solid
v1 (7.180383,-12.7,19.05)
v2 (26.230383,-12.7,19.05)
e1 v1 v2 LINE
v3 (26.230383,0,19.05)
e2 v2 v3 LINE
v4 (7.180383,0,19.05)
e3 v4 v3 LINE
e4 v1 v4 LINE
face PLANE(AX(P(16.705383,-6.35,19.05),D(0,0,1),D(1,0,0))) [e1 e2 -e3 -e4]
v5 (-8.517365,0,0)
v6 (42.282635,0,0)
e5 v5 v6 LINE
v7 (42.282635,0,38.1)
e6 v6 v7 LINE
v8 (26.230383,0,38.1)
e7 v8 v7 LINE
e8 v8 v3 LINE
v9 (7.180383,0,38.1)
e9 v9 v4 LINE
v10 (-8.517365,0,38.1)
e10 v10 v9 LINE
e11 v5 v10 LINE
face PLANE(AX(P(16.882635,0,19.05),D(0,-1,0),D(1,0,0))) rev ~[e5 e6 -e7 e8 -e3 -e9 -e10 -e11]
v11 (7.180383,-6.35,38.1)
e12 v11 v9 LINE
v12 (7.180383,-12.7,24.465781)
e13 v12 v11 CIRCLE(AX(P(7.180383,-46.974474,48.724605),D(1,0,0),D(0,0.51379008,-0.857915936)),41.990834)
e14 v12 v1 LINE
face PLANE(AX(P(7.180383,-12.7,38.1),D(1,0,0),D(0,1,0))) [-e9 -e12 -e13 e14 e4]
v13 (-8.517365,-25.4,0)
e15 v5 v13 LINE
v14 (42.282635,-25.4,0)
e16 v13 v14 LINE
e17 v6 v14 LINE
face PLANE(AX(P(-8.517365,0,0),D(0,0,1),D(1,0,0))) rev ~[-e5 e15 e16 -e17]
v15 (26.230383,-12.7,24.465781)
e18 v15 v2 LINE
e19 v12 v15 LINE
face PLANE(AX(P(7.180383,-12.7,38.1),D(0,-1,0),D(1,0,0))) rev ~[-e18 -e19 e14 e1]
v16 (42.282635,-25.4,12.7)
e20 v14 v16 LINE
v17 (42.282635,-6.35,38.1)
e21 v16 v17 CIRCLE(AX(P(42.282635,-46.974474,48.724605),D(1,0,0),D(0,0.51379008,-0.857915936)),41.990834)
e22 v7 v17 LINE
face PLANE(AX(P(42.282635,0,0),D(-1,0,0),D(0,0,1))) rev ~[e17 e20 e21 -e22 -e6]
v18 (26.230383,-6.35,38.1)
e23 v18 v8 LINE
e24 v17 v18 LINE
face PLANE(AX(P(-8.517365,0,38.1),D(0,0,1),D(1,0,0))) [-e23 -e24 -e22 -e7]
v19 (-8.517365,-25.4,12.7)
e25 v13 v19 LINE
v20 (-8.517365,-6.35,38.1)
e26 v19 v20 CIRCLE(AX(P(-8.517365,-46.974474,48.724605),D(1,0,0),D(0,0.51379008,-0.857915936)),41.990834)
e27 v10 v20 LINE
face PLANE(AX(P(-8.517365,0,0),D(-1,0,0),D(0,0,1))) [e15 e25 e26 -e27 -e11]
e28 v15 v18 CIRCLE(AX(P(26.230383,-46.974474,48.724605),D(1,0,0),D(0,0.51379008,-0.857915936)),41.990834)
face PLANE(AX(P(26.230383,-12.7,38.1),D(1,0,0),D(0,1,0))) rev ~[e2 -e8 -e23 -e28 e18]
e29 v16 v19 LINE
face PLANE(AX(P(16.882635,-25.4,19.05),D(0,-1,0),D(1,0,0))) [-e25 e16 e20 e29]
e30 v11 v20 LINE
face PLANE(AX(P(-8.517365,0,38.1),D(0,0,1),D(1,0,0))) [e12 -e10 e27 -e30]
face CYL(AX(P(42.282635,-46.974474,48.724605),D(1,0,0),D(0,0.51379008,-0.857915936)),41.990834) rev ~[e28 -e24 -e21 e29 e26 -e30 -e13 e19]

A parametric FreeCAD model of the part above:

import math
import FreeCAD as App
import Part
import Sketcher

V = App.Vector
Q = App.Units.Quantity

doc = App.newDocument("Part")
body = doc.addObject("PartDesign::Body", "Body")

# Sketch on XZ plane
sketch1 = doc.addObject("Sketcher::SketchObject", "Sketch")
body.addObject(sketch1)
sketch1.AttachmentSupport = (doc.XZ_Plane, [""])
sketch1.MapMode = "FlatFace"
sketch1.addGeometry([
    Part.LineSegment(V(-9, 38, 0), V(-9, 0, 0)),
    Part.LineSegment(V(-9, 0, 0), V(42, 0, 0)),
    Part.LineSegment(V(42, 0, 0), V(42, 38, 0)),
    Part.LineSegment(V(42, 38, 0), V(-9, 38, 0)),
], False)
sketch1.addConstraint([
    Sketcher.Constraint("Coincident", 0, 2, 1, 1),
    Sketcher.Constraint("Coincident", 1, 2, 2, 1),
    Sketcher.Constraint("Coincident", 2, 2, 3, 1),
    Sketcher.Constraint("Coincident", 3, 2, 0, 1),
    Sketcher.Constraint("Vertical", 0),
    Sketcher.Constraint("Horizontal", 1),
    Sketcher.Constraint("Vertical", 2),
    Sketcher.Constraint("Horizontal", 3),
    Sketcher.Constraint("PointOnObject", 0, 2, -1),
    Sketcher.Constraint("DistanceX", 1, 1, 1, 2, Q("2 in")),
    Sketcher.Constraint("DistanceY", 0, 2, 0, 1, Q("1.5 in")),
    Sketcher.Constraint("DistanceX", 0, 2, -1, 1, 8.517365),
])
pad1 = doc.addObject("PartDesign::Pad", "Pad")
body.addObject(pad1)
pad1.Profile = sketch1
pad1.Length = Q("1 in")

# Sketch on YZ plane
sketch2 = doc.addObject("Sketcher::SketchObject", "Sketch001")
body.addObject(sketch2)
sketch2.AttachmentSupport = (doc.YZ_Plane, [""])
sketch2.MapMode = "FlatFace"
sketch2.AttachmentOffset = App.Placement(V(0, 0, 42.282635), App.Rotation())
sketch2.addGeometry([
    Part.LineSegment(V(-25, 38, 0), V(-25, 13, 0)),
    Part.ArcOfCircle(Part.Circle(V(-47, 49, 0), V(0, 0, 1), 42), math.radians(-59), math.radians(-15)),
    Part.LineSegment(V(-6, 38, 0), V(-25, 38, 0)),
], False)
sketch2.addConstraint([
    Sketcher.Constraint("Coincident", 0, 2, 1, 1),
    Sketcher.Constraint("Coincident", 1, 2, 2, 1),
    Sketcher.Constraint("Coincident", 2, 2, 0, 1),
    Sketcher.Constraint("Vertical", 0),
    Sketcher.Constraint("Horizontal", 2),
    Sketcher.Constraint("DistanceY", 0, 2, 0, 1, Q("1 in")),
    Sketcher.Constraint("DistanceX", 0, 2, -1, 1, Q("1 in")),
    Sketcher.Constraint("DistanceX", 2, 2, 2, 1, Q("0.75 in")),
    Sketcher.Constraint("DistanceY", -1, 1, 0, 2, Q("0.5 in")),
    Sketcher.Constraint("Radius", 1, 41.990834),
])
pocket1 = doc.addObject("PartDesign::Pocket", "Pocket")
body.addObject(pocket1)
pocket1.Profile = sketch2
pocket1.Length = Q("2 in")

# Sketch on XY plane
sketch3 = doc.addObject("Sketcher::SketchObject", "Sketch002")
body.addObject(sketch3)
sketch3.AttachmentSupport = (doc.XY_Plane, [""])
sketch3.MapMode = "FlatFace"
sketch3.AttachmentOffset = App.Placement(V(0, 0, 1.5 * 25.4), App.Rotation())
sketch3.addGeometry([
    Part.LineSegment(V(7, 0, 0), V(7, -13, 0)),
    Part.LineSegment(V(7, -13, 0), V(26, -13, 0)),
    Part.LineSegment(V(26, -13, 0), V(26, 0, 0)),
    Part.LineSegment(V(26, 0, 0), V(7, 0, 0)),
], False)
sketch3.addConstraint([
    Sketcher.Constraint("Coincident", 0, 2, 1, 1),
    Sketcher.Constraint("Coincident", 1, 2, 2, 1),
    Sketcher.Constraint("Coincident", 2, 2, 3, 1),
    Sketcher.Constraint("Coincident", 3, 2, 0, 1),
    Sketcher.Constraint("Vertical", 0),
    Sketcher.Constraint("Horizontal", 1),
    Sketcher.Constraint("Vertical", 2),
    Sketcher.Constraint("Horizontal", 3),
    Sketcher.Constraint("PointOnObject", 2, 2, -1),
    Sketcher.Constraint("DistanceY", 0, 2, 0, 1, Q("0.5 in")),
    Sketcher.Constraint("DistanceX", 1, 1, 1, 2, Q("0.75 in")),
    Sketcher.Constraint("DistanceX", -1, 1, 0, 2, 7.180383),
])
pocket2 = doc.addObject("PartDesign::Pocket", "Pocket001")
body.addObject(pocket2)
pocket2.Profile = sketch3
pocket2.Length = Q("0.75 in")

doc.recompute()
